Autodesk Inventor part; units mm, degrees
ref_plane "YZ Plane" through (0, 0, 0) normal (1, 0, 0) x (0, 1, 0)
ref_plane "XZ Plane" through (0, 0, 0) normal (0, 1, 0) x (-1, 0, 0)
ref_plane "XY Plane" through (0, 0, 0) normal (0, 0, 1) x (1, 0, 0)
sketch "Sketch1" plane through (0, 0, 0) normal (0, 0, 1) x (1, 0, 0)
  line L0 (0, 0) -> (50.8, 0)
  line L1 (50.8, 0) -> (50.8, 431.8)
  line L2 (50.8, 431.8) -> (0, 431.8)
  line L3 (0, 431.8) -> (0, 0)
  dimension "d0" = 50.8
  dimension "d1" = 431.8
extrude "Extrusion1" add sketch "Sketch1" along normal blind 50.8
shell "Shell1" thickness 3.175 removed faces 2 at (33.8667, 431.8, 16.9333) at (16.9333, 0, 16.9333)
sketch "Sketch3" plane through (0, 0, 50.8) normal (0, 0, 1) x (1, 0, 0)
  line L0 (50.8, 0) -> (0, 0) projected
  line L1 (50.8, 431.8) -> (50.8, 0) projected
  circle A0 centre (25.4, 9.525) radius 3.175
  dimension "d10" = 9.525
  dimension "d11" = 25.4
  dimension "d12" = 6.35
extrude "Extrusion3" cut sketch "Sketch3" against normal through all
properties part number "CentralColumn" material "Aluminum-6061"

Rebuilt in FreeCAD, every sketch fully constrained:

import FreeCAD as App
import Part
import Sketcher
from FreeCAD import Vector
Q = App.Units.Quantity


def faces_at(feature, points):
    """Names of the faces that lie closest to the given points."""
    faces = feature.Shape.Faces
    near = lambda p: min(range(len(faces)), key=lambda i: faces[i].distToShape(Part.Vertex(*p))[0])
    return sorted({f"Face{near(p) + 1}" for p in points})

doc = App.newDocument("Part")
body = doc.addObject("PartDesign::Body", "Body")

# Sketch on XY plane
sketch1 = body.newObject("Sketcher::SketchObject", "Sketch")
sketch1.AttachmentSupport = (doc.getObject("XY_Plane"), [""])
sketch1.MapMode = "FlatFace"
sketch1.addGeometry([
    Part.LineSegment(Vector(0, 432, 0), Vector(0, 0, 0)),
    Part.LineSegment(Vector(0, 0, 0), Vector(51, 0, 0)),
    Part.LineSegment(Vector(51, 0, 0), Vector(51, 432, 0)),
    Part.LineSegment(Vector(51, 432, 0), Vector(0, 432, 0)),
], False)
sketch1.addConstraint([
    Sketcher.Constraint("Coincident", 0, 2, 1, 1),
    Sketcher.Constraint("Coincident", 1, 2, 2, 1),
    Sketcher.Constraint("Coincident", 2, 2, 3, 1),
    Sketcher.Constraint("Coincident", 3, 2, 0, 1),
    Sketcher.Constraint("Vertical", 0),
    Sketcher.Constraint("Horizontal", 1),
    Sketcher.Constraint("Vertical", 2),
    Sketcher.Constraint("Horizontal", 3),
    Sketcher.Constraint("Coincident", 0, 2, -1, 1),
    Sketcher.Constraint("DistanceX", 1, 1, 1, 2, Q("2 in")),
    Sketcher.Constraint("DistanceY", 0, 2, 0, 1, Q("17 in")),
])
pad1 = body.newObject("PartDesign::Pad", "Pad")
pad1.Profile = sketch1
pad1.Length = Q("2 in")
doc.recompute()

thickness = body.newObject("PartDesign::Thickness", "Thickness")
thickness.Base = (pad1, faces_at(pad1, [(33.867, 431.8, 16.933), (16.933, 0, 16.933)]))
thickness.Value = Q("0.125 in")
thickness.Reversed = True
thickness.Join = "Intersection"

# Sketch on XY plane
sketch2 = body.newObject("Sketcher::SketchObject", "Sketch001")
sketch2.AttachmentSupport = (doc.getObject("XY_Plane"), [""])
sketch2.MapMode = "FlatFace"
sketch2.AttachmentOffset = App.Placement(Vector(0, 0, 2 * 25.4), App.Rotation())
sketch2.addGeometry(Part.Circle(Vector(25.4, 9.5, 0), Vector(0, 0, 1), 3.2), False)
sketch2.addConstraint([
    Sketcher.Constraint("Diameter", 0, Q("0.25 in")),
    Sketcher.Constraint("DistanceX", -1, 1, 0, 3, Q("1 in")),
    Sketcher.Constraint("DistanceY", -1, 1, 0, 3, Q("0.375 in")),
])
pocket1 = body.newObject("PartDesign::Pocket", "Pocket")
pocket1.Profile = sketch2
pocket1.Type = "ThroughAll"

doc.recompute()
